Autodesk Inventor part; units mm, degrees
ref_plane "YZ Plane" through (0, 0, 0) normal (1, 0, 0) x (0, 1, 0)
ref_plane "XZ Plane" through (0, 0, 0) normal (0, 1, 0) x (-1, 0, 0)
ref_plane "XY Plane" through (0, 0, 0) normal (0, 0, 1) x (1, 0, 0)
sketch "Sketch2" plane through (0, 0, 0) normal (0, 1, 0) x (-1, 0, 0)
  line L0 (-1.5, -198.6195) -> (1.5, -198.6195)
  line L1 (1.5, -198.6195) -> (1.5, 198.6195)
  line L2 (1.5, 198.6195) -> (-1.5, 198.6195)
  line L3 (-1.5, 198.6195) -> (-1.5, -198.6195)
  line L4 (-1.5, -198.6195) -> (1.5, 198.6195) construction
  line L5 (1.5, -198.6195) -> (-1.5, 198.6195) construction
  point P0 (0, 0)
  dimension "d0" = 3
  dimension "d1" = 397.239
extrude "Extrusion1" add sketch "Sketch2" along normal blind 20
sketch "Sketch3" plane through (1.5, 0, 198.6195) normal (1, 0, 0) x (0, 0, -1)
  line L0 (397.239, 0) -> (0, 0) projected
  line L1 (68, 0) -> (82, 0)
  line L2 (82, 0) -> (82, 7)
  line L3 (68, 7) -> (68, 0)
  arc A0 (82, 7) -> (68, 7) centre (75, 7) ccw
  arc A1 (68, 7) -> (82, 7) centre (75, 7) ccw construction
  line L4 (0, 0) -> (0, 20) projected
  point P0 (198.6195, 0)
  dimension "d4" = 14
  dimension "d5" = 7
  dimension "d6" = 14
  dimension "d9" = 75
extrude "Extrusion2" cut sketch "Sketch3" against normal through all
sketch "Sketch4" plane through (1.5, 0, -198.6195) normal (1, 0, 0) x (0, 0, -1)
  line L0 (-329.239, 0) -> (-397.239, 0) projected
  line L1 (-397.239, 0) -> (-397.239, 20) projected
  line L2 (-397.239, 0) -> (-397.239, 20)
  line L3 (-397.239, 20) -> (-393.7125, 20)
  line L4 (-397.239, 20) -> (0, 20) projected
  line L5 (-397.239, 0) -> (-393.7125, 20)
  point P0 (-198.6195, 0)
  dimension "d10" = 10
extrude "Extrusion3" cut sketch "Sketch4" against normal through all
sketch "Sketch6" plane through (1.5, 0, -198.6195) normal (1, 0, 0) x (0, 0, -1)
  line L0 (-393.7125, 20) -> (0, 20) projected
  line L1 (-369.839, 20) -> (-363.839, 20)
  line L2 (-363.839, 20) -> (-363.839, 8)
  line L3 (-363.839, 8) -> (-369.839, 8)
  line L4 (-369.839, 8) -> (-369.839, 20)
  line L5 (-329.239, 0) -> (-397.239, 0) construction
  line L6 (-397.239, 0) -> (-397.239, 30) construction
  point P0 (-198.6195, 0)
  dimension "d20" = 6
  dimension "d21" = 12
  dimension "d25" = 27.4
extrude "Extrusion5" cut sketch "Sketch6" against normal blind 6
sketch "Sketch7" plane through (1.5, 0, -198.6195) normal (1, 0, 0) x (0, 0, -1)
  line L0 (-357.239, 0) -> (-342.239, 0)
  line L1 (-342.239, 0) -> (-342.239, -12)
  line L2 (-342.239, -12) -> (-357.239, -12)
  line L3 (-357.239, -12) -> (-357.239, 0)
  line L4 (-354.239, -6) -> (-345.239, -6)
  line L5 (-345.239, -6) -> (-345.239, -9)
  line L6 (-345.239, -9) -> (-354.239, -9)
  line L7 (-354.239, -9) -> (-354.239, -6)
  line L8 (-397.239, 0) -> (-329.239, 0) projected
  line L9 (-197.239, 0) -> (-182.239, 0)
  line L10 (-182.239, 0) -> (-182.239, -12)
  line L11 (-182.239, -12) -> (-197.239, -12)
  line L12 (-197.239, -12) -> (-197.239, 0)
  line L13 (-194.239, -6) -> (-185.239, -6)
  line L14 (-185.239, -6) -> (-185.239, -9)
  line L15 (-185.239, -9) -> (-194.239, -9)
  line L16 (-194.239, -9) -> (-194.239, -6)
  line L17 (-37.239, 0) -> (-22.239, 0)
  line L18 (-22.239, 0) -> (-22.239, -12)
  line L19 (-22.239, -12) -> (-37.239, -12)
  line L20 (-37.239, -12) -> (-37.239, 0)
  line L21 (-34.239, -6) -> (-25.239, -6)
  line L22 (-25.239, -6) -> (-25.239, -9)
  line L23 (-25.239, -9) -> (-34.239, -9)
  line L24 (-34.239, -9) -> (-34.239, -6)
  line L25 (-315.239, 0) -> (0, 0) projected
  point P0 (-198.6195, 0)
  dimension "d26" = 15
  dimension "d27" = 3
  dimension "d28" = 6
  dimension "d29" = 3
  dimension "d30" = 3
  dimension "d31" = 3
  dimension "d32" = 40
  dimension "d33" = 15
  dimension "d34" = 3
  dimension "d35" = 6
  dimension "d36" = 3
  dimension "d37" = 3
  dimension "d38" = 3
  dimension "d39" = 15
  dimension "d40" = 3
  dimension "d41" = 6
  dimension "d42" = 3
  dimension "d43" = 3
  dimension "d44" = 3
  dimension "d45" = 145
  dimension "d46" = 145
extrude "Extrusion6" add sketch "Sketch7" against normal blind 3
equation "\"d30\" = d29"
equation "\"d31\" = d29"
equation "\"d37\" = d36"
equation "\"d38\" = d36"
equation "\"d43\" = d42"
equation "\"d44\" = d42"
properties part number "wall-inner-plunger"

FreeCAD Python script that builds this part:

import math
import FreeCAD as App
import Part
import Sketcher
Q = App.Units.Quantity

doc = App.newDocument("Part")
params = doc.addObject("Spreadsheet::Sheet", "Params")
for row, (alias, value) in enumerate([
    ("sketch1_width", "3 mm"),
    ("pad1_length", "20 mm"),
    ("sketch2_radius", "7 mm"),
    ("sketch2_width", "7 mm"),
    ("sketch3_width", "20 mm"),
    ("sketch4_width", "12 mm"),
    ("sketch4_height", "6 mm"),
    ("pocket3_length", "6 mm"),
    ("sketch5_width", "3 mm"),
    ("sketch5_height", "15 mm"),
    ("pad2_length", "3 mm"),
], start=1):
    params.set(f"A{row}", alias)
    params.set(f"B{row}", "=" + value)
    params.setAlias(f"B{row}", alias)

body = doc.addObject("PartDesign::Body", "Body")

# Sketch on XZ plane
sketch1 = doc.addObject("Sketcher::SketchObject", "Sketch")
body.addObject(sketch1)
sketch1.AttachmentSupport = (doc.XZ_Plane, [""])
sketch1.MapMode = "FlatFace"
sketch1.addGeometry([
    Part.LineSegment(App.Vector(1.5, 198.6, 0), App.Vector(1.5, -198.6, 0)),
    Part.LineSegment(App.Vector(1.5, -198.6, 0), App.Vector(-1.5, -198.6, 0)),
    Part.LineSegment(App.Vector(-1.5, -198.6, 0), App.Vector(-1.5, 198.6, 0)),
    Part.LineSegment(App.Vector(-1.5, 198.6, 0), App.Vector(1.5, 198.6, 0)),
], False)
sketch1.addConstraint([
    Sketcher.Constraint("Coincident", 0, 2, 1, 1),
    Sketcher.Constraint("Coincident", 1, 2, 2, 1),
    Sketcher.Constraint("Coincident", 2, 2, 3, 1),
    Sketcher.Constraint("Coincident", 3, 2, 0, 1),
    Sketcher.Constraint("Vertical", 0),
    Sketcher.Constraint("Horizontal", 1),
    Sketcher.Constraint("Vertical", 2),
    Sketcher.Constraint("Horizontal", 3),
    Sketcher.Constraint("Symmetric", 0, 2, 2, 2, -1, 1),
    Sketcher.Constraint("DistanceX", 1, 2, 1, 1, 3.0),
    Sketcher.Constraint("DistanceY", 0, 2, 0, 1, 397.239),
])
sketch1.setExpression("Constraints[9]", "Params.sketch1_width")
pad1 = doc.addObject("PartDesign::Pad", "Pad")
body.addObject(pad1)
pad1.Profile = sketch1
pad1.setExpression("Length", "Params.pad1_length")
pad1.Reversed = True

# Sketch on YZ plane
sketch2 = doc.addObject("Sketcher::SketchObject", "Sketch001")
body.addObject(sketch2)
sketch2.AttachmentSupport = (doc.YZ_Plane, [""])
sketch2.MapMode = "FlatFace"
sketch2.AttachmentOffset = App.Placement(App.Vector(0, 0, 1.5), App.Rotation())
sketch2.addGeometry([
    Part.LineSegment(App.Vector(0, 131, 0), App.Vector(0, 117, 0)),
    Part.LineSegment(App.Vector(0, 117, 0), App.Vector(7, 117, 0)),
    Part.ArcOfCircle(Part.Circle(App.Vector(7, 124, 0), App.Vector(0, 0, 1), 7), math.radians(-90), math.radians(90)),
    Part.LineSegment(App.Vector(7, 131, 0), App.Vector(0, 131, 0)),
], False)
sketch2.addConstraint([
    Sketcher.Constraint("Coincident", 0, 2, 1, 1),
    Sketcher.Constraint("Tangent", 1, 2, 2, 1),
    Sketcher.Constraint("Tangent", 2, 2, 3, 1),
    Sketcher.Constraint("Coincident", 3, 2, 0, 1),
    Sketcher.Constraint("Vertical", 0),
    Sketcher.Constraint("Horizontal", 1),
    Sketcher.Constraint("Horizontal", 3),
    Sketcher.Constraint("PointOnObject", 0, 2, -2),
    Sketcher.Constraint("Radius", 2, 7.0),
    Sketcher.Constraint("DistanceX", 1, 1, 1, 2, 7.0),
    Sketcher.Constraint("DistanceY", -1, 1, 2, 3, 123.6195),
])
sketch2.setExpression("Constraints[8]", "Params.sketch2_radius")
sketch2.setExpression("Constraints[9]", "Params.sketch2_width")
pocket1 = doc.addObject("PartDesign::Pocket", "Pocket")
body.addObject(pocket1)
pocket1.Profile = sketch2
pocket1.Type = "ThroughAll"

# Sketch on YZ plane
sketch3 = doc.addObject("Sketcher::SketchObject", "Sketch002")
body.addObject(sketch3)
sketch3.AttachmentSupport = (doc.YZ_Plane, [""])
sketch3.MapMode = "FlatFace"
sketch3.AttachmentOffset = App.Placement(App.Vector(0, 0, 1.5), App.Rotation())
sketch3.addGeometry([
    Part.LineSegment(App.Vector(20, 198.6, 0), App.Vector(0, 198.6, 0)),
    Part.LineSegment(App.Vector(0, 198.6, 0), App.Vector(20, 195.1, 0)),
    Part.LineSegment(App.Vector(20, 195.1, 0), App.Vector(20, 198.6, 0)),
], False)
sketch3.addConstraint([
    Sketcher.Constraint("Coincident", 0, 2, 1, 1),
    Sketcher.Constraint("Coincident", 1, 2, 2, 1),
    Sketcher.Constraint("Coincident", 2, 2, 0, 1),
    Sketcher.Constraint("Horizontal", 0),
    Sketcher.Constraint("Vertical", 2),
    Sketcher.Constraint("PointOnObject", 0, 2, -2),
    Sketcher.Constraint("Angle", 1, Q("-10 deg")),
    Sketcher.Constraint("DistanceX", 0, 2, 0, 1, 20.0),
    Sketcher.Constraint("DistanceY", -1, 1, 1, 2, 195.093),
])
sketch3.setExpression("Constraints[7]", "Params.sketch3_width")
pocket2 = doc.addObject("PartDesign::Pocket", "Pocket001")
body.addObject(pocket2)
pocket2.Profile = sketch3
pocket2.Type = "ThroughAll"

# Sketch on YZ plane
sketch4 = doc.addObject("Sketcher::SketchObject", "Sketch003")
body.addObject(sketch4)
sketch4.AttachmentSupport = (doc.YZ_Plane, [""])
sketch4.MapMode = "FlatFace"
sketch4.AttachmentOffset = App.Placement(App.Vector(0, 0, 1.5), App.Rotation())
sketch4.addGeometry([
    Part.LineSegment(App.Vector(20, 165, 0), App.Vector(20, 171, 0)),
    Part.LineSegment(App.Vector(20, 171, 0), App.Vector(8, 171, 0)),
    Part.LineSegment(App.Vector(8, 171, 0), App.Vector(8, 165, 0)),
    Part.LineSegment(App.Vector(8, 165, 0), App.Vector(20, 165, 0)),
], False)
sketch4.addConstraint([
    Sketcher.Constraint("Coincident", 0, 2, 1, 1),
    Sketcher.Constraint("Coincident", 1, 2, 2, 1),
    Sketcher.Constraint("Coincident", 2, 2, 3, 1),
    Sketcher.Constraint("Coincident", 3, 2, 0, 1),
    Sketcher.Constraint("Vertical", 0),
    Sketcher.Constraint("Horizontal", 1),
    Sketcher.Constraint("Vertical", 2),
    Sketcher.Constraint("Horizontal", 3),
    Sketcher.Constraint("DistanceX", 1, 2, 1, 1, 12.0),
    Sketcher.Constraint("DistanceY", 0, 1, 0, 2, 6.0),
    Sketcher.Constraint("DistanceX", -1, 1, 0, 2, 20.0),
    Sketcher.Constraint("DistanceY", -1, 1, 0, 2, 171.2195),
])
sketch4.setExpression("Constraints[8]", "Params.sketch4_width")
sketch4.setExpression("Constraints[9]", "Params.sketch4_height")
pocket3 = doc.addObject("PartDesign::Pocket", "Pocket002")
body.addObject(pocket3)
pocket3.Profile = sketch4
pocket3.setExpression("Length", "Params.pocket3_length")

# Sketch on YZ plane
sketch5 = doc.addObject("Sketcher::SketchObject", "Sketch004")
body.addObject(sketch5)
sketch5.AttachmentSupport = (doc.YZ_Plane, [""])
sketch5.MapMode = "FlatFace"
sketch5.AttachmentOffset = App.Placement(App.Vector(0, 0, 1.5), App.Rotation())
sketch5.addGeometry([
    Part.LineSegment(App.Vector(0, 143.6, 0), App.Vector(0, 158.6, 0)),  # 0
    Part.LineSegment(App.Vector(0, 158.6, 0), App.Vector(-12, 158.6, 0)),  # 1
    Part.LineSegment(App.Vector(-12, 158.6, 0), App.Vector(-12, 143.6, 0)),  # 2
    Part.LineSegment(App.Vector(-12, 143.6, 0), App.Vector(0, 143.6, 0)),  # 3
    Part.LineSegment(App.Vector(-9, 155.6, 0), App.Vector(-6, 155.6, 0)),  # 4
    Part.LineSegment(App.Vector(-6, 155.6, 0), App.Vector(-6, 146.6, 0)),  # 5
    Part.LineSegment(App.Vector(-6, 146.6, 0), App.Vector(-9, 146.6, 0)),  # 6
    Part.LineSegment(App.Vector(-9, 146.6, 0), App.Vector(-9, 155.6, 0)),  # 7
    Part.LineSegment(App.Vector(0, -176.4, 0), App.Vector(0, -161.4, 0)),  # 8
    Part.LineSegment(App.Vector(0, -161.4, 0), App.Vector(-12, -161.4, 0)),  # 9
    Part.LineSegment(App.Vector(-12, -161.4, 0), App.Vector(-12, -176.4, 0)),  # 10
    Part.LineSegment(App.Vector(-12, -176.4, 0), App.Vector(0, -176.4, 0)),  # 11
    Part.LineSegment(App.Vector(-9, -164.4, 0), App.Vector(-6, -164.4, 0)),  # 12
    Part.LineSegment(App.Vector(-6, -164.4, 0), App.Vector(-6, -173.4, 0)),  # 13
    Part.LineSegment(App.Vector(-6, -173.4, 0), App.Vector(-9, -173.4, 0)),  # 14
    Part.LineSegment(App.Vector(-9, -173.4, 0), App.Vector(-9, -164.4, 0)),  # 15
    Part.LineSegment(App.Vector(0, -16.4, 0), App.Vector(0, -1.4, 0)),  # 16
    Part.LineSegment(App.Vector(0, -1.4, 0), App.Vector(-12, -1.4, 0)),  # 17
    Part.LineSegment(App.Vector(-12, -1.4, 0), App.Vector(-12, -16.4, 0)),  # 18
    Part.LineSegment(App.Vector(-12, -16.4, 0), App.Vector(0, -16.4, 0)),  # 19
    Part.LineSegment(App.Vector(-9, -4.4, 0), App.Vector(-6, -4.4, 0)),  # 20
    Part.LineSegment(App.Vector(-6, -4.4, 0), App.Vector(-6, -13.4, 0)),  # 21
    Part.LineSegment(App.Vector(-6, -13.4, 0), App.Vector(-9, -13.4, 0)),  # 22
    Part.LineSegment(App.Vector(-9, -13.4, 0), App.Vector(-9, -4.4, 0)),  # 23
], False)
sketch5.addConstraint([
    Sketcher.Constraint("Coincident", 0, 2, 1, 1),
    Sketcher.Constraint("Coincident", 1, 2, 2, 1),
    Sketcher.Constraint("Coincident", 2, 2, 3, 1),
    Sketcher.Constraint("Coincident", 3, 2, 0, 1),
    Sketcher.Constraint("Coincident", 4, 2, 5, 1),
    Sketcher.Constraint("Coincident", 5, 2, 6, 1),
    Sketcher.Constraint("Coincident", 6, 2, 7, 1),
    Sketcher.Constraint("Coincident", 7, 2, 4, 1),
    Sketcher.Constraint("Coincident", 8, 2, 9, 1),
    Sketcher.Constraint("Coincident", 9, 2, 10, 1),
    Sketcher.Constraint("Coincident", 10, 2, 11, 1),
    Sketcher.Constraint("Coincident", 11, 2, 8, 1),
    Sketcher.Constraint("Coincident", 12, 2, 13, 1),
    Sketcher.Constraint("Coincident", 13, 2, 14, 1),
    Sketcher.Constraint("Coincident", 14, 2, 15, 1),
    Sketcher.Constraint("Coincident", 15, 2, 12, 1),
    Sketcher.Constraint("Coincident", 16, 2, 17, 1),
    Sketcher.Constraint("Coincident", 17, 2, 18, 1),
    Sketcher.Constraint("Coincident", 18, 2, 19, 1),
    Sketcher.Constraint("Coincident", 19, 2, 16, 1),
    Sketcher.Constraint("Coincident", 20, 2, 21, 1),
    Sketcher.Constraint("Coincident", 21, 2, 22, 1),
    Sketcher.Constraint("Coincident", 22, 2, 23, 1),
    Sketcher.Constraint("Coincident", 23, 2, 20, 1),
    Sketcher.Constraint("Vertical", 0),
    Sketcher.Constraint("Horizontal", 1),
    Sketcher.Constraint("Vertical", 2),
    Sketcher.Constraint("Horizontal", 3),
    Sketcher.Constraint("Horizontal", 4),
    Sketcher.Constraint("Vertical", 5),
    Sketcher.Constraint("Horizontal", 6),
    Sketcher.Constraint("Vertical", 7),
    Sketcher.Constraint("Vertical", 8),
    Sketcher.Constraint("Horizontal", 9),
    Sketcher.Constraint("Vertical", 10),
    Sketcher.Constraint("Horizontal", 11),
    Sketcher.Constraint("Horizontal", 12),
    Sketcher.Constraint("Vertical", 13),
    Sketcher.Constraint("Horizontal", 14),
    Sketcher.Constraint("Vertical", 15),
    Sketcher.Constraint("Vertical", 16),
    Sketcher.Constraint("Horizontal", 17),
    Sketcher.Constraint("Vertical", 18),
    Sketcher.Constraint("Horizontal", 19),
    Sketcher.Constraint("Horizontal", 20),
    Sketcher.Constraint("Vertical", 21),
    Sketcher.Constraint("Horizontal", 22),
    Sketcher.Constraint("Vertical", 23),
    Sketcher.Constraint("PointOnObject", 0, 2, -2),
    Sketcher.Constraint("PointOnObject", 8, 2, -2),
    Sketcher.Constraint("PointOnObject", 16, 2, -2),
    Sketcher.Constraint("Vertical", 2, 2, 9, 2),
    Sketcher.Constraint("Vertical", 5, 2, 12, 2),
    Sketcher.Constraint("Vertical", 7, 2, 14, 2),
    Sketcher.Constraint("Vertical", 10, 2, 17, 2),
    Sketcher.Constraint("Vertical", 13, 2, 20, 2),
    Sketcher.Constraint("Vertical", 15, 2, 22, 2),
    Sketcher.Constraint("Equal", 2, 8),
    Sketcher.Constraint("Equal", 7, 13),
    Sketcher.Constraint("Equal", 10, 16),
    Sketcher.Constraint("Equal", 15, 21),
    Sketcher.Constraint("DistanceX", 4, 1, 4, 2, 3.0),
    Sketcher.Constraint("DistanceY", 0, 1, 0, 2, 15.0),
    Sketcher.Constraint("DistanceX", 4, 2, -1, 1, 6.0),
    Sketcher.Constraint("DistanceY", 4, 2, 0, 2, 3.0),
    Sketcher.Constraint("DistanceX", 1, 2, 4, 2, 6.0),
    Sketcher.Constraint("DistanceY", 2, 2, 5, 2, 3.0),
    Sketcher.Constraint("DistanceY", 12, 2, 8, 2, 3.0),
    Sketcher.Constraint("DistanceY", 16, 2, 3, 2, 145.0),
    Sketcher.Constraint("DistanceY", 9, 2, 18, 2, 145.0),
    Sketcher.Constraint("DistanceY", 20, 2, 16, 2, 3.0),
    Sketcher.Constraint("DistanceY", -1, 1, 0, 2, 158.6195),
])
sketch5.setExpression("Constraints[61]", "Params.sketch5_width")
sketch5.setExpression("Constraints[62]", "Params.sketch5_height")
pad2 = doc.addObject("PartDesign::Pad", "Pad001")
body.addObject(pad2)
pad2.Profile = sketch5
pad2.setExpression("Length", "Params.pad2_length")
pad2.Reversed = True

doc.recompute()
